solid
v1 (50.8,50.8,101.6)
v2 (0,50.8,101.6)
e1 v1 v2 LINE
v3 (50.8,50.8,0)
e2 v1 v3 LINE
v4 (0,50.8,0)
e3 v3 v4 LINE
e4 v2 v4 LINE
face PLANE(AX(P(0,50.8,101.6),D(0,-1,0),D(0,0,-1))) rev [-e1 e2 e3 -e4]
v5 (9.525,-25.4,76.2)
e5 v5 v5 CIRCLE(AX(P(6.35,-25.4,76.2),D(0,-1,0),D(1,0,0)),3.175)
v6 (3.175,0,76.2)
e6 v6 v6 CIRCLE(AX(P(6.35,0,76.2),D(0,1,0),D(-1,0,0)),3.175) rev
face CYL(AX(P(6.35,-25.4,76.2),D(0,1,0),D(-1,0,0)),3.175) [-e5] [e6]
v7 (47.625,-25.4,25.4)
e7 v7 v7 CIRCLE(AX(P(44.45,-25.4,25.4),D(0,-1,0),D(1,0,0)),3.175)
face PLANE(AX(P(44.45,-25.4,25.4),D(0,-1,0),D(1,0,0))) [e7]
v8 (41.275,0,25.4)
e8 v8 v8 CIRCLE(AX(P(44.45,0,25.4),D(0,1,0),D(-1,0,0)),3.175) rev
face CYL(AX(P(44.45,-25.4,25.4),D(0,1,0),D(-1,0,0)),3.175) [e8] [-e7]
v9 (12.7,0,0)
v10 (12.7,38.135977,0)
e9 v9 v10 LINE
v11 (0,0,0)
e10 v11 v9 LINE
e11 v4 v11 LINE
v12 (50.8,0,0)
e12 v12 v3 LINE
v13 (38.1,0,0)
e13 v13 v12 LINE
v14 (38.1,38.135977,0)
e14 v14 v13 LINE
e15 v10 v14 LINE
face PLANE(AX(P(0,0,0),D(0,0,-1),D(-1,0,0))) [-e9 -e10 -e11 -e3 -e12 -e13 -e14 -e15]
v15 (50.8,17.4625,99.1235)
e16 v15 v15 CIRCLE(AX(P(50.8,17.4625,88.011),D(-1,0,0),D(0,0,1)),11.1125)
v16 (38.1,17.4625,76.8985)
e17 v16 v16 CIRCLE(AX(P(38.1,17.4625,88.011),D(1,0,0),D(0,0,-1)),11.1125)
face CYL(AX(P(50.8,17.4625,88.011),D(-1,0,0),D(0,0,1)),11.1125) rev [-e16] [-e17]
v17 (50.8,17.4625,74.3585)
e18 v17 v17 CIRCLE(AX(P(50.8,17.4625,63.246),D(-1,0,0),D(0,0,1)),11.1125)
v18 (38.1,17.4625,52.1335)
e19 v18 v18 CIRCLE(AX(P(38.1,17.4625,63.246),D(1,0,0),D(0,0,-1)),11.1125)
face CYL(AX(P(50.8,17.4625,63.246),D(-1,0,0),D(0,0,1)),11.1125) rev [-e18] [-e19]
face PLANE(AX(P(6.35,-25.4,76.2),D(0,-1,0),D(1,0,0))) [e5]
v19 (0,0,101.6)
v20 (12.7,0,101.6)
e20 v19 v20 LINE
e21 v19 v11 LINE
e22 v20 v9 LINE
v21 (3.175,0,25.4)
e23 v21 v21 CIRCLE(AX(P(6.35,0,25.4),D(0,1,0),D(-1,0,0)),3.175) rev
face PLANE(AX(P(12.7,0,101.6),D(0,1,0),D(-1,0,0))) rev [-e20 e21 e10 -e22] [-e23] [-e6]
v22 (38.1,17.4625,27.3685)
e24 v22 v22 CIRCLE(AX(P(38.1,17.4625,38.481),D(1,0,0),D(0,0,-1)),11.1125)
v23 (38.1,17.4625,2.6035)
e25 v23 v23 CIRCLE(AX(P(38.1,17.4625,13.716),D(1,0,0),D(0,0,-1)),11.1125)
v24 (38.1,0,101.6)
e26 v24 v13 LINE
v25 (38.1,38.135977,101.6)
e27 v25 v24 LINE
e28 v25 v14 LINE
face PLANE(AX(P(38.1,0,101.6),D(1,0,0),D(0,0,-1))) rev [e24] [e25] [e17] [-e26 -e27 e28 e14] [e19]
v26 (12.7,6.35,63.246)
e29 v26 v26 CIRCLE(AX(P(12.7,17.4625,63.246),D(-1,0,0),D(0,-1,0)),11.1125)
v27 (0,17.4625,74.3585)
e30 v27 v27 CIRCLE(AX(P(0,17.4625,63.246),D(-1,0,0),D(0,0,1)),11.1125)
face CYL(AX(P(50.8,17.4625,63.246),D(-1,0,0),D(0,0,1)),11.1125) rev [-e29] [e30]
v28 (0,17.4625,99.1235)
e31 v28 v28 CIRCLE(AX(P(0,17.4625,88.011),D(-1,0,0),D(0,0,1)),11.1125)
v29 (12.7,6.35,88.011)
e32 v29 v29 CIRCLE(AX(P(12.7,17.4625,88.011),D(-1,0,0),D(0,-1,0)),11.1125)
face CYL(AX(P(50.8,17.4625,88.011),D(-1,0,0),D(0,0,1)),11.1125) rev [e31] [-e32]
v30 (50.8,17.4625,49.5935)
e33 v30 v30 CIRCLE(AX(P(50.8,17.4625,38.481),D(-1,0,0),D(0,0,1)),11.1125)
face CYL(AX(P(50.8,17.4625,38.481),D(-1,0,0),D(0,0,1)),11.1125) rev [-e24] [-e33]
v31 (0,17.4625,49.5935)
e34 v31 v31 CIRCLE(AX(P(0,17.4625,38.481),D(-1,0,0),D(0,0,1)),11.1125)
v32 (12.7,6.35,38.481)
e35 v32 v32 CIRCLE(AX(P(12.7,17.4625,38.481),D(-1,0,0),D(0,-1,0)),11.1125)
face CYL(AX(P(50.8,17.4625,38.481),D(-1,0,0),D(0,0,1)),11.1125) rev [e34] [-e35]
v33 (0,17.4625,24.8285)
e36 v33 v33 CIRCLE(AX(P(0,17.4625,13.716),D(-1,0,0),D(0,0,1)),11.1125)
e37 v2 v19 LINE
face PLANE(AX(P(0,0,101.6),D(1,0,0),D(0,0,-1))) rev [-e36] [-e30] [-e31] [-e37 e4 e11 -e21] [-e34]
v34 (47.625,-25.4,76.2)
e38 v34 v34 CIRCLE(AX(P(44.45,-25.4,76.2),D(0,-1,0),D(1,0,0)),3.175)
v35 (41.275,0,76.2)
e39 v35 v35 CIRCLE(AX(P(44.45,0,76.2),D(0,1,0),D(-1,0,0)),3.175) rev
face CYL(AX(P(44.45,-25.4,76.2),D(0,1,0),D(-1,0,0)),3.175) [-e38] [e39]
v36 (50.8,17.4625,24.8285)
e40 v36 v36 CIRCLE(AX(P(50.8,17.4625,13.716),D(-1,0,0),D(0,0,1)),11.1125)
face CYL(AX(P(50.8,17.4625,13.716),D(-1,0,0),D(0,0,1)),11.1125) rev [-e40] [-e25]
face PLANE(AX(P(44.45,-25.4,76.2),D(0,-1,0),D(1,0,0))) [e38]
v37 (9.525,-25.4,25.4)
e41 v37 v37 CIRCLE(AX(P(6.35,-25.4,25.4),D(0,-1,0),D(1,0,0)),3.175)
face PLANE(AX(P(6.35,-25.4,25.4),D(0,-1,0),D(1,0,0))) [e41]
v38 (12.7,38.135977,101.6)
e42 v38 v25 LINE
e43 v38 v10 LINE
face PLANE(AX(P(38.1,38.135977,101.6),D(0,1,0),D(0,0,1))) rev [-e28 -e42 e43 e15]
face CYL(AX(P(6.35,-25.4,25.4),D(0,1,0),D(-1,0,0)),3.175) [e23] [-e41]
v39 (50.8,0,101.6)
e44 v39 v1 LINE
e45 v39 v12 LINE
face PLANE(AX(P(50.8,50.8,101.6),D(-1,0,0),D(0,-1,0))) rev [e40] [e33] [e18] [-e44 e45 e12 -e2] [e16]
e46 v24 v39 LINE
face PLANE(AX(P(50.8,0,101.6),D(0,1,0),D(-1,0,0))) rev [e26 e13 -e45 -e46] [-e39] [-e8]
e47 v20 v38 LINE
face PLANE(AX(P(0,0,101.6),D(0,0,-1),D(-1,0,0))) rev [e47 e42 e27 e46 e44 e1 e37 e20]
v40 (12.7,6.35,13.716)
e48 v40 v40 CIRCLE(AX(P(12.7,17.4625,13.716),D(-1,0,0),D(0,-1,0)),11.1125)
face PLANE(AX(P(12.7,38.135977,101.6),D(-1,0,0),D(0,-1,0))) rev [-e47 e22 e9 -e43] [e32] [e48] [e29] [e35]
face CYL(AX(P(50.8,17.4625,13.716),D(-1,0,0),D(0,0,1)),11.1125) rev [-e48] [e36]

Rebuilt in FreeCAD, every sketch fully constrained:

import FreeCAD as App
import Part
import Sketcher
from FreeCAD import Vector
Q = App.Units.Quantity


def add_polygon(sketch, points):
    """Adds a closed chain of lines whose ends are joined by coincident constraints."""
    first, n = sketch.GeometryCount, len(points)
    for a, b in zip(points, points[1:] + points[:1]):
        sketch.addGeometry(Part.LineSegment(App.Vector(*a, 0), App.Vector(*b, 0)), False)
    for i in range(n):
        sketch.addConstraint(Sketcher.Constraint("Coincident", first + i, 2, first + (i + 1) % n, 1))

doc = App.newDocument("Part")
params = doc.addObject("Spreadsheet::Sheet", "Params")
for row, (alias, value) in enumerate([
    ("sketch1_width", "1 in"),
    ("sketch1_width2", "2 in"),
    ("pad1_length", "4 in"),
    ("sketch2_diameter", "0.875 in"),
    ("sketch3_diameter", "0.25 in"),
    ("pad2_length", "1 in"),
], start=1):
    params.set(f"A{row}", alias)
    params.set(f"B{row}", "=" + value)
    params.setAlias(f"B{row}", alias)

body = doc.addObject("PartDesign::Body", "Body")

# Sketch on XY plane
sketch1 = body.newObject("Sketcher::SketchObject", "Sketch")
sketch1.AttachmentSupport = (doc.getObject("XY_Plane"), [""])
sketch1.MapMode = "FlatFace"
add_polygon(sketch1, [(0, 51), (0, 0), (13, 0), (13, 38), (38, 38), (38, 0), (51, 0), (51, 51)])  # lines 0-7
sketch1.addConstraint([
    Sketcher.Constraint("Vertical", 0),
    Sketcher.Constraint("Horizontal", 1),
    Sketcher.Constraint("Vertical", 2),
    Sketcher.Constraint("Horizontal", 3),
    Sketcher.Constraint("Vertical", 4),
    Sketcher.Constraint("Horizontal", 5),
    Sketcher.Constraint("Vertical", 6),
    Sketcher.Constraint("Horizontal", 7),
    Sketcher.Constraint("Coincident", 0, 2, -1, 1),
    Sketcher.Constraint("PointOnObject", 4, 2, -1),
    Sketcher.Constraint("Equal", 1, 5),
    Sketcher.Constraint("Equal", 7, 0),
    Sketcher.Constraint("DistanceX", 3, 1, 3, 2, Q("1 in")),
    Sketcher.Constraint("DistanceX", 7, 2, 7, 1, Q("2 in")),
    Sketcher.Constraint("DistanceY", 2, 1, 2, 2, 38.135977),
])
sketch1.setExpression("Constraints[20]", "Params.sketch1_width")
sketch1.setExpression("Constraints[21]", "Params.sketch1_width2")
pad1 = body.newObject("PartDesign::Pad", "Pad")
pad1.Profile = sketch1
pad1.setExpression("Length", "Params.pad1_length")

# Sketch on YZ plane
sketch2 = body.newObject("Sketcher::SketchObject", "Sketch001")
sketch2.AttachmentSupport = (doc.getObject("YZ_Plane"), [""])
sketch2.MapMode = "FlatFace"
sketch2.addGeometry([
    Part.Circle(Vector(17, 14, 0), Vector(0, 0, 1), 11),
    Part.Circle(Vector(17, 38, 0), Vector(0, 0, 1), 11),
    Part.Circle(Vector(17, 63, 0), Vector(0, 0, 1), 11),
    Part.Circle(Vector(17, 88, 0), Vector(0, 0, 1), 11),
], False)
sketch2.addConstraint([
    Sketcher.Constraint("Equal", 0, 1),
    Sketcher.Constraint("Equal", 1, 2),
    Sketcher.Constraint("Equal", 2, 3),
    Sketcher.Constraint("Vertical", 0, 3, 1, 3),
    Sketcher.Constraint("Vertical", 1, 3, 2, 3),
    Sketcher.Constraint("Vertical", 2, 3, 3, 3),
    Sketcher.Constraint("Diameter", 0, Q("0.875 in")),
    Sketcher.Constraint("DistanceY", -1, 1, 0, 3, Q("0.54 in")),
    Sketcher.Constraint("DistanceY", -1, 1, 2, 3, Q("2.49 in")),
    Sketcher.Constraint("DistanceY", 1, 3, 3, 3, Q("1.95 in")),
    Sketcher.Constraint("DistanceX", -1, 1, 0, 3, Q("0.6875 in")),
    Sketcher.Constraint("DistanceY", -1, 1, 1, 3, Q("1.515 in")),
])
sketch2.setExpression("Constraints[6]", "Params.sketch2_diameter")
pocket1 = body.newObject("PartDesign::Pocket", "Pocket")
pocket1.Profile = sketch2
pocket1.Type = "ThroughAll"
pocket1.Reversed = True

# Sketch on XZ plane
sketch3 = body.newObject("Sketcher::SketchObject", "Sketch002")
sketch3.AttachmentSupport = (doc.getObject("XZ_Plane"), [""])
sketch3.MapMode = "FlatFace"
sketch3.addGeometry([
    Part.Circle(Vector(6.3, 25.4, 0), Vector(0, 0, 1), 3.2),
    Part.Circle(Vector(6.3, 76.2, 0), Vector(0, 0, 1), 3.2),
    Part.Circle(Vector(44.5, 76.2, 0), Vector(0, 0, 1), 3.2),
    Part.Circle(Vector(44.5, 25.4, 0), Vector(0, 0, 1), 3.2),
], False)
sketch3.addConstraint([
    Sketcher.Constraint("Equal", 0, 1),
    Sketcher.Constraint("Equal", 1, 2),
    Sketcher.Constraint("Equal", 2, 3),
    Sketcher.Constraint("Horizontal", 1, 3, 2, 3),
    Sketcher.Constraint("Horizontal", 0, 3, 3, 3),
    Sketcher.Constraint("Vertical", 0, 3, 1, 3),
    Sketcher.Constraint("Vertical", 2, 3, 3, 3),
    Sketcher.Constraint("Diameter", 0, Q("0.25 in")),
    Sketcher.Constraint("DistanceY", -1, 1, 0, 3, Q("1 in")),
    Sketcher.Constraint("DistanceY", -1, 1, 1, 3, Q("3 in")),
    Sketcher.Constraint("DistanceX", 1, 3, 2, 3, Q("1.5 in")),
    Sketcher.Constraint("DistanceX", -1, 1, 0, 3, Q("0.25 in")),
])
sketch3.setExpression("Constraints[7]", "Params.sketch3_diameter")
pad2 = body.newObject("PartDesign::Pad", "Pad001")
pad2.Profile = sketch3
pad2.setExpression("Length", "Params.pad2_length")

doc.recompute()
